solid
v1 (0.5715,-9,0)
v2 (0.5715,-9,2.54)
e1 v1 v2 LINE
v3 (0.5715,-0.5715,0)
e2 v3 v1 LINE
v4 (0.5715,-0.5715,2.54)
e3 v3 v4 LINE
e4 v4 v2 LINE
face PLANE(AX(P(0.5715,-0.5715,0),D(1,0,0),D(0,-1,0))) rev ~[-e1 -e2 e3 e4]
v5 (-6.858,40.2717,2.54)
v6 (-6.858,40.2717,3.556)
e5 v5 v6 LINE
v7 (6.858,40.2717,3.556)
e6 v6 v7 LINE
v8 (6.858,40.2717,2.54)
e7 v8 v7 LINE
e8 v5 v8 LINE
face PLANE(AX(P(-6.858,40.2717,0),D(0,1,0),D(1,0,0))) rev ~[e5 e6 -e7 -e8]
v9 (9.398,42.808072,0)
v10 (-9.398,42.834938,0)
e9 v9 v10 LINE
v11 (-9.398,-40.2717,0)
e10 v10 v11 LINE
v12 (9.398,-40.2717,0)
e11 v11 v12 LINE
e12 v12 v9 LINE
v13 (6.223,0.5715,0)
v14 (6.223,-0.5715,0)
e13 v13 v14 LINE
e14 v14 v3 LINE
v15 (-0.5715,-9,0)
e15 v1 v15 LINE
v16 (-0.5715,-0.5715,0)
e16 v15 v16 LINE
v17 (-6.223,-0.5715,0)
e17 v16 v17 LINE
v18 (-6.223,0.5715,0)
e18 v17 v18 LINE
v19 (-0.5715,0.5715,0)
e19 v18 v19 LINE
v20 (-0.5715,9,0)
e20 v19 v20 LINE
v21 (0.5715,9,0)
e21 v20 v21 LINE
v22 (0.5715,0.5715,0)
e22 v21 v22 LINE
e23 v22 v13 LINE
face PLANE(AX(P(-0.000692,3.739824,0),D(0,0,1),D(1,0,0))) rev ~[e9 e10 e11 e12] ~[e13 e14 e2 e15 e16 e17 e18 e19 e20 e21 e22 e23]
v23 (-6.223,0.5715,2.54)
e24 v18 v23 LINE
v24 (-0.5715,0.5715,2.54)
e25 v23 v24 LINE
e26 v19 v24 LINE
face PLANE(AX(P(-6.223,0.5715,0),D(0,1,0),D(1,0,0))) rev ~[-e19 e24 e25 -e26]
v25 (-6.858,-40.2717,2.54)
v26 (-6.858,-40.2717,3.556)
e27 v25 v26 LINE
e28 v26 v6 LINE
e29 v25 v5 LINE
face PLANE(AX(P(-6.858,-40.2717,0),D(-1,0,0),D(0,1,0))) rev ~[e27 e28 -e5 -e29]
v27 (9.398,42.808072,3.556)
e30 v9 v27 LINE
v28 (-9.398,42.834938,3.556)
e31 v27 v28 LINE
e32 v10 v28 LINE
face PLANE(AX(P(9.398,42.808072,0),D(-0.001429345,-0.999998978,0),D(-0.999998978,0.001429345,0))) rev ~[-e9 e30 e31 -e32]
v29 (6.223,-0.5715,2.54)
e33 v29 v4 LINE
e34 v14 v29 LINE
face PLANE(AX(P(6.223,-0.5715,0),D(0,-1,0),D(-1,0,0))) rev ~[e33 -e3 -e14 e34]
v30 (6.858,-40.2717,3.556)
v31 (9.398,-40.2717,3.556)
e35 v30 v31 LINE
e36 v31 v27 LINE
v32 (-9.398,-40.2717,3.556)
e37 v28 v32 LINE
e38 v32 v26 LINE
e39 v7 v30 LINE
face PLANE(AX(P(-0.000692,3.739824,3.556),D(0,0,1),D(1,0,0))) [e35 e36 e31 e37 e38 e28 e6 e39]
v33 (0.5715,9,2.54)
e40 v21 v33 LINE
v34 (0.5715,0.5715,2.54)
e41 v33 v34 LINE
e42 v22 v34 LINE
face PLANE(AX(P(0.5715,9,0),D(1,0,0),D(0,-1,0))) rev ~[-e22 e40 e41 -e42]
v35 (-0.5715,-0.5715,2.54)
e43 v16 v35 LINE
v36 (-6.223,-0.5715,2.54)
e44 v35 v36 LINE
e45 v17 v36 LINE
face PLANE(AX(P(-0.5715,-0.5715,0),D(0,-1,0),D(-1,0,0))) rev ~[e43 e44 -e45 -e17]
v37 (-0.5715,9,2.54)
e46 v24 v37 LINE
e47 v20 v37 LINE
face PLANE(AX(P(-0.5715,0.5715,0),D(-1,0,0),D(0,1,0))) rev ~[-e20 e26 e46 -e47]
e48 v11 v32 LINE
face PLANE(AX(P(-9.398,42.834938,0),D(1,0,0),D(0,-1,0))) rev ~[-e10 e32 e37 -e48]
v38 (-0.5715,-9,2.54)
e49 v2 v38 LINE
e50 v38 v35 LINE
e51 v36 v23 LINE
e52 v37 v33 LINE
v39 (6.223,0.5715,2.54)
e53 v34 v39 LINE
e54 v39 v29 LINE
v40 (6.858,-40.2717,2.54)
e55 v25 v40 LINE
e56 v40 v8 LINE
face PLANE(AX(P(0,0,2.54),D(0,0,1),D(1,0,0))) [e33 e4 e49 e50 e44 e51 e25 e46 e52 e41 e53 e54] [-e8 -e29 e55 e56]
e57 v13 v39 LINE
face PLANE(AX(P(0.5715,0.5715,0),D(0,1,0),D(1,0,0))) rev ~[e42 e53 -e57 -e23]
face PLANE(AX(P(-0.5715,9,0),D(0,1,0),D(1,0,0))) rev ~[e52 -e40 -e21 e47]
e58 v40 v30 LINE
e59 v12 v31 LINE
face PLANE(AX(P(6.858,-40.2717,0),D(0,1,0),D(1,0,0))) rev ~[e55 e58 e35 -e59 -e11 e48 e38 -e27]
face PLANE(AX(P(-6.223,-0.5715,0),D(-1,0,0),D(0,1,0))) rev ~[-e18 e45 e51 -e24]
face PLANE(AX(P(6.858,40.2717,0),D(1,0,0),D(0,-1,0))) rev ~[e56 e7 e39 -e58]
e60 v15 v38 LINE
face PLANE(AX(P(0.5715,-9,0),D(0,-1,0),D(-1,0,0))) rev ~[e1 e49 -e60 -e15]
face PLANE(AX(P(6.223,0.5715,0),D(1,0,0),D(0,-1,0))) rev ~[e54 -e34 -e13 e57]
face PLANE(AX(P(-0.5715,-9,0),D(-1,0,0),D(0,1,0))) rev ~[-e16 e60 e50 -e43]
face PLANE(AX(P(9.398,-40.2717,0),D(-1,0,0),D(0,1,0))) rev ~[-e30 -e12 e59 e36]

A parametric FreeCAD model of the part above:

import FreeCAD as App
import Part
import Sketcher
from FreeCAD import Vector
Q = App.Units.Quantity

doc = App.newDocument("Part")
body = doc.addObject("PartDesign::Body", "Body")

# Sketch on XY plane
sketch1 = body.newObject("Sketcher::SketchObject", "Sketch")
sketch1.AttachmentSupport = (doc.getObject("XY_Plane"), [""])
sketch1.MapMode = "FlatFace"
sketch1.addGeometry(Part.LineSegment(Vector(-6.858, 40.2717, 0), Vector(-6.858, -40.2717, 0)), False)
sketch1.addGeometry(Part.LineSegment(Vector(-6.858, -40.2717, 0), Vector(6.858, -40.2717, 0)), False)
sketch1.addGeometry(Part.LineSegment(Vector(6.858, -40.2717, 0), Vector(6.858, 40.2717, 0)), False)
sketch1.addGeometry(Part.LineSegment(Vector(6.858, 40.2717, 0), Vector(-6.858, 40.2717, 0)), False)
sketch1.addGeometry(Part.LineSegment(Vector(-0.5715, 0.5715, 0), Vector(-0.5715, 9, 0)), False)
sketch1.addGeometry(Part.LineSegment(Vector(-0.5715, 9, 0), Vector(0.5715, 9, 0)), False)
sketch1.addGeometry(Part.LineSegment(Vector(0.5715, 9, 0), Vector(0.5715, 0.5715, 0)), False)
sketch1.addGeometry(Part.LineSegment(Vector(0.5715, 0.5715, 0), Vector(6.223, 0.5715, 0)), False)
sketch1.addGeometry(Part.LineSegment(Vector(6.223, 0.5715, 0), Vector(6.223, -0.5715, 0)), False)
sketch1.addGeometry(Part.LineSegment(Vector(6.223, -0.5715, 0), Vector(0.5715, -0.5715, 0)), False)
sketch1.addGeometry(Part.LineSegment(Vector(0.5715, -0.5715, 0), Vector(0.5715, -9, 0)), False)
sketch1.addGeometry(Part.LineSegment(Vector(0.5715, -9, 0), Vector(-0.5715, -9, 0)), False)
sketch1.addGeometry(Part.LineSegment(Vector(-0.5715, -9, 0), Vector(-0.5715, -0.5715, 0)), False)
sketch1.addGeometry(Part.LineSegment(Vector(-0.5715, -0.5715, 0), Vector(-6.223, -0.5715, 0)), False)
sketch1.addGeometry(Part.LineSegment(Vector(-6.223, -0.5715, 0), Vector(-6.223, 0.5715, 0)), False)
sketch1.addGeometry(Part.LineSegment(Vector(-6.223, 0.5715, 0), Vector(-0.5715, 0.5715, 0)), False)
sketch1.addConstraint(Sketcher.Constraint("Coincident", 0, 2, 1, 1))
sketch1.addConstraint(Sketcher.Constraint("Coincident", 1, 2, 2, 1))
sketch1.addConstraint(Sketcher.Constraint("Coincident", 2, 2, 3, 1))
sketch1.addConstraint(Sketcher.Constraint("Coincident", 3, 2, 0, 1))
sketch1.addConstraint(Sketcher.Constraint("Coincident", 4, 2, 5, 1))
sketch1.addConstraint(Sketcher.Constraint("Coincident", 5, 2, 6, 1))
sketch1.addConstraint(Sketcher.Constraint("Coincident", 6, 2, 7, 1))
sketch1.addConstraint(Sketcher.Constraint("Coincident", 7, 2, 8, 1))
sketch1.addConstraint(Sketcher.Constraint("Coincident", 8, 2, 9, 1))
sketch1.addConstraint(Sketcher.Constraint("Coincident", 9, 2, 10, 1))
sketch1.addConstraint(Sketcher.Constraint("Coincident", 10, 2, 11, 1))
sketch1.addConstraint(Sketcher.Constraint("Coincident", 11, 2, 12, 1))
sketch1.addConstraint(Sketcher.Constraint("Coincident", 12, 2, 13, 1))
sketch1.addConstraint(Sketcher.Constraint("Coincident", 13, 2, 14, 1))
sketch1.addConstraint(Sketcher.Constraint("Coincident", 14, 2, 15, 1))
sketch1.addConstraint(Sketcher.Constraint("Coincident", 15, 2, 4, 1))
sketch1.addConstraint(Sketcher.Constraint("Vertical", 0))
sketch1.addConstraint(Sketcher.Constraint("Horizontal", 1))
sketch1.addConstraint(Sketcher.Constraint("Vertical", 2))
sketch1.addConstraint(Sketcher.Constraint("Horizontal", 3))
sketch1.addConstraint(Sketcher.Constraint("Vertical", 4))
sketch1.addConstraint(Sketcher.Constraint("Horizontal", 5))
sketch1.addConstraint(Sketcher.Constraint("Vertical", 6))
sketch1.addConstraint(Sketcher.Constraint("Horizontal", 7))
sketch1.addConstraint(Sketcher.Constraint("Vertical", 8))
sketch1.addConstraint(Sketcher.Constraint("Horizontal", 9))
sketch1.addConstraint(Sketcher.Constraint("Vertical", 10))
sketch1.addConstraint(Sketcher.Constraint("Horizontal", 11))
sketch1.addConstraint(Sketcher.Constraint("Vertical", 12))
sketch1.addConstraint(Sketcher.Constraint("Horizontal", 13))
sketch1.addConstraint(Sketcher.Constraint("Vertical", 14))
sketch1.addConstraint(Sketcher.Constraint("Horizontal", 15))
sketch1.addConstraint(Sketcher.Constraint("Symmetric", 0, 2, 2, 2, -1, 1))
sketch1.addConstraint(Sketcher.Constraint("Symmetric", 4, 2, 10, 2, -1, 1))
sketch1.addConstraint(Sketcher.Constraint("Symmetric", 6, 2, 12, 2, -1, 1))
sketch1.addConstraint(Sketcher.Constraint("Symmetric", 8, 2, 14, 2, -1, 1))
sketch1.addConstraint(Sketcher.Constraint("Symmetric", 9, 2, 12, 2, -2))
sketch1.addConstraint(Sketcher.Constraint("Equal", 11, 8))
sketch1.addConstraint(Sketcher.Constraint("DistanceX", 1, 1, 1, 2, Q("0.54 in")))
sketch1.addConstraint(Sketcher.Constraint("DistanceX", 5, 1, 5, 2, Q("0.045 in")))
sketch1.addConstraint(Sketcher.Constraint("DistanceY", 0, 2, 0, 1, Q("3.171 in")))
sketch1.addConstraint(Sketcher.Constraint("DistanceX", 7, 1, 7, 2, Q("0.2225 in")))
sketch1.addConstraint(Sketcher.Constraint("DistanceY", 4, 1, 4, 2, Q("8.4285 mm")))
pad1 = body.newObject("PartDesign::Pad", "Pad")
pad1.Profile = sketch1
pad1.Length = Q("0.1 in")

# Sketch on XY plane
sketch2 = body.newObject("Sketcher::SketchObject", "Sketch001")
sketch2.AttachmentSupport = (doc.getObject("XY_Plane"), [""])
sketch2.MapMode = "FlatFace"
sketch2.addGeometry(Part.LineSegment(Vector(6.858, 40.2717, 0), Vector(6.858, -40.2717, 0)), False)
sketch2.addGeometry(Part.LineSegment(Vector(6.858, -40.2717, 0), Vector(9.398, -40.2717, 0)), False)
sketch2.addGeometry(Part.LineSegment(Vector(9.398, -40.2717, 0), Vector(9.398, 42.808072, 0)), False)
sketch2.addGeometry(Part.LineSegment(Vector(9.398, 42.808072, 0), Vector(-9.398, 42.834938, 0)), False)
sketch2.addGeometry(Part.LineSegment(Vector(-9.398, 42.834938, 0), Vector(-9.398, -40.2717, 0)), False)
sketch2.addGeometry(Part.LineSegment(Vector(-9.398, -40.2717, 0), Vector(-6.858, -40.2717, 0)), False)
sketch2.addGeometry(Part.LineSegment(Vector(-6.858, -40.2717, 0), Vector(-6.858, 40.2717, 0)), False)
sketch2.addGeometry(Part.LineSegment(Vector(-6.858, 40.2717, 0), Vector(6.858, 40.2717, 0)), False)
sketch2.addConstraint(Sketcher.Constraint("Coincident", 0, 2, 1, 1))
sketch2.addConstraint(Sketcher.Constraint("Coincident", 1, 2, 2, 1))
sketch2.addConstraint(Sketcher.Constraint("Coincident", 2, 2, 3, 1))
sketch2.addConstraint(Sketcher.Constraint("Coincident", 3, 2, 4, 1))
sketch2.addConstraint(Sketcher.Constraint("Coincident", 4, 2, 5, 1))
sketch2.addConstraint(Sketcher.Constraint("Coincident", 5, 2, 6, 1))
sketch2.addConstraint(Sketcher.Constraint("Coincident", 6, 2, 7, 1))
sketch2.addConstraint(Sketcher.Constraint("Coincident", 7, 2, 0, 1))
sketch2.addConstraint(Sketcher.Constraint("Vertical", 0))
sketch2.addConstraint(Sketcher.Constraint("Horizontal", 1))
sketch2.addConstraint(Sketcher.Constraint("Vertical", 2))
sketch2.addConstraint(Sketcher.Constraint("Vertical", 4))
sketch2.addConstraint(Sketcher.Constraint("Horizontal", 5))
sketch2.addConstraint(Sketcher.Constraint("Vertical", 6))
sketch2.addConstraint(Sketcher.Constraint("Horizontal", 7))
sketch2.addConstraint(Sketcher.Constraint("Symmetric", 0, 2, 6, 2, -1, 1))
sketch2.addConstraint(Sketcher.Constraint("Symmetric", 1, 2, 4, 2, -2))
sketch2.addConstraint(Sketcher.Constraint("DistanceX", 1, 1, 1, 2, Q("0.1 in")))
sketch2.addConstraint(Sketcher.Constraint("DistanceX", 7, 1, 7, 2, Q("0.54 in")))
sketch2.addConstraint(Sketcher.Constraint("DistanceY", 0, 2, 0, 1, Q("3.171 in")))
sketch2.addConstraint(Sketcher.Constraint("DistanceY", 4, 2, 4, 1, Q("83.106638 mm")))
sketch2.addConstraint(Sketcher.Constraint("DistanceY", 2, 1, 2, 2, Q("83.079772 mm")))
pad2 = body.newObject("PartDesign::Pad", "Pad001")
pad2.Profile = sketch2
pad2.Length = Q("0.14 in")

doc.recompute()
